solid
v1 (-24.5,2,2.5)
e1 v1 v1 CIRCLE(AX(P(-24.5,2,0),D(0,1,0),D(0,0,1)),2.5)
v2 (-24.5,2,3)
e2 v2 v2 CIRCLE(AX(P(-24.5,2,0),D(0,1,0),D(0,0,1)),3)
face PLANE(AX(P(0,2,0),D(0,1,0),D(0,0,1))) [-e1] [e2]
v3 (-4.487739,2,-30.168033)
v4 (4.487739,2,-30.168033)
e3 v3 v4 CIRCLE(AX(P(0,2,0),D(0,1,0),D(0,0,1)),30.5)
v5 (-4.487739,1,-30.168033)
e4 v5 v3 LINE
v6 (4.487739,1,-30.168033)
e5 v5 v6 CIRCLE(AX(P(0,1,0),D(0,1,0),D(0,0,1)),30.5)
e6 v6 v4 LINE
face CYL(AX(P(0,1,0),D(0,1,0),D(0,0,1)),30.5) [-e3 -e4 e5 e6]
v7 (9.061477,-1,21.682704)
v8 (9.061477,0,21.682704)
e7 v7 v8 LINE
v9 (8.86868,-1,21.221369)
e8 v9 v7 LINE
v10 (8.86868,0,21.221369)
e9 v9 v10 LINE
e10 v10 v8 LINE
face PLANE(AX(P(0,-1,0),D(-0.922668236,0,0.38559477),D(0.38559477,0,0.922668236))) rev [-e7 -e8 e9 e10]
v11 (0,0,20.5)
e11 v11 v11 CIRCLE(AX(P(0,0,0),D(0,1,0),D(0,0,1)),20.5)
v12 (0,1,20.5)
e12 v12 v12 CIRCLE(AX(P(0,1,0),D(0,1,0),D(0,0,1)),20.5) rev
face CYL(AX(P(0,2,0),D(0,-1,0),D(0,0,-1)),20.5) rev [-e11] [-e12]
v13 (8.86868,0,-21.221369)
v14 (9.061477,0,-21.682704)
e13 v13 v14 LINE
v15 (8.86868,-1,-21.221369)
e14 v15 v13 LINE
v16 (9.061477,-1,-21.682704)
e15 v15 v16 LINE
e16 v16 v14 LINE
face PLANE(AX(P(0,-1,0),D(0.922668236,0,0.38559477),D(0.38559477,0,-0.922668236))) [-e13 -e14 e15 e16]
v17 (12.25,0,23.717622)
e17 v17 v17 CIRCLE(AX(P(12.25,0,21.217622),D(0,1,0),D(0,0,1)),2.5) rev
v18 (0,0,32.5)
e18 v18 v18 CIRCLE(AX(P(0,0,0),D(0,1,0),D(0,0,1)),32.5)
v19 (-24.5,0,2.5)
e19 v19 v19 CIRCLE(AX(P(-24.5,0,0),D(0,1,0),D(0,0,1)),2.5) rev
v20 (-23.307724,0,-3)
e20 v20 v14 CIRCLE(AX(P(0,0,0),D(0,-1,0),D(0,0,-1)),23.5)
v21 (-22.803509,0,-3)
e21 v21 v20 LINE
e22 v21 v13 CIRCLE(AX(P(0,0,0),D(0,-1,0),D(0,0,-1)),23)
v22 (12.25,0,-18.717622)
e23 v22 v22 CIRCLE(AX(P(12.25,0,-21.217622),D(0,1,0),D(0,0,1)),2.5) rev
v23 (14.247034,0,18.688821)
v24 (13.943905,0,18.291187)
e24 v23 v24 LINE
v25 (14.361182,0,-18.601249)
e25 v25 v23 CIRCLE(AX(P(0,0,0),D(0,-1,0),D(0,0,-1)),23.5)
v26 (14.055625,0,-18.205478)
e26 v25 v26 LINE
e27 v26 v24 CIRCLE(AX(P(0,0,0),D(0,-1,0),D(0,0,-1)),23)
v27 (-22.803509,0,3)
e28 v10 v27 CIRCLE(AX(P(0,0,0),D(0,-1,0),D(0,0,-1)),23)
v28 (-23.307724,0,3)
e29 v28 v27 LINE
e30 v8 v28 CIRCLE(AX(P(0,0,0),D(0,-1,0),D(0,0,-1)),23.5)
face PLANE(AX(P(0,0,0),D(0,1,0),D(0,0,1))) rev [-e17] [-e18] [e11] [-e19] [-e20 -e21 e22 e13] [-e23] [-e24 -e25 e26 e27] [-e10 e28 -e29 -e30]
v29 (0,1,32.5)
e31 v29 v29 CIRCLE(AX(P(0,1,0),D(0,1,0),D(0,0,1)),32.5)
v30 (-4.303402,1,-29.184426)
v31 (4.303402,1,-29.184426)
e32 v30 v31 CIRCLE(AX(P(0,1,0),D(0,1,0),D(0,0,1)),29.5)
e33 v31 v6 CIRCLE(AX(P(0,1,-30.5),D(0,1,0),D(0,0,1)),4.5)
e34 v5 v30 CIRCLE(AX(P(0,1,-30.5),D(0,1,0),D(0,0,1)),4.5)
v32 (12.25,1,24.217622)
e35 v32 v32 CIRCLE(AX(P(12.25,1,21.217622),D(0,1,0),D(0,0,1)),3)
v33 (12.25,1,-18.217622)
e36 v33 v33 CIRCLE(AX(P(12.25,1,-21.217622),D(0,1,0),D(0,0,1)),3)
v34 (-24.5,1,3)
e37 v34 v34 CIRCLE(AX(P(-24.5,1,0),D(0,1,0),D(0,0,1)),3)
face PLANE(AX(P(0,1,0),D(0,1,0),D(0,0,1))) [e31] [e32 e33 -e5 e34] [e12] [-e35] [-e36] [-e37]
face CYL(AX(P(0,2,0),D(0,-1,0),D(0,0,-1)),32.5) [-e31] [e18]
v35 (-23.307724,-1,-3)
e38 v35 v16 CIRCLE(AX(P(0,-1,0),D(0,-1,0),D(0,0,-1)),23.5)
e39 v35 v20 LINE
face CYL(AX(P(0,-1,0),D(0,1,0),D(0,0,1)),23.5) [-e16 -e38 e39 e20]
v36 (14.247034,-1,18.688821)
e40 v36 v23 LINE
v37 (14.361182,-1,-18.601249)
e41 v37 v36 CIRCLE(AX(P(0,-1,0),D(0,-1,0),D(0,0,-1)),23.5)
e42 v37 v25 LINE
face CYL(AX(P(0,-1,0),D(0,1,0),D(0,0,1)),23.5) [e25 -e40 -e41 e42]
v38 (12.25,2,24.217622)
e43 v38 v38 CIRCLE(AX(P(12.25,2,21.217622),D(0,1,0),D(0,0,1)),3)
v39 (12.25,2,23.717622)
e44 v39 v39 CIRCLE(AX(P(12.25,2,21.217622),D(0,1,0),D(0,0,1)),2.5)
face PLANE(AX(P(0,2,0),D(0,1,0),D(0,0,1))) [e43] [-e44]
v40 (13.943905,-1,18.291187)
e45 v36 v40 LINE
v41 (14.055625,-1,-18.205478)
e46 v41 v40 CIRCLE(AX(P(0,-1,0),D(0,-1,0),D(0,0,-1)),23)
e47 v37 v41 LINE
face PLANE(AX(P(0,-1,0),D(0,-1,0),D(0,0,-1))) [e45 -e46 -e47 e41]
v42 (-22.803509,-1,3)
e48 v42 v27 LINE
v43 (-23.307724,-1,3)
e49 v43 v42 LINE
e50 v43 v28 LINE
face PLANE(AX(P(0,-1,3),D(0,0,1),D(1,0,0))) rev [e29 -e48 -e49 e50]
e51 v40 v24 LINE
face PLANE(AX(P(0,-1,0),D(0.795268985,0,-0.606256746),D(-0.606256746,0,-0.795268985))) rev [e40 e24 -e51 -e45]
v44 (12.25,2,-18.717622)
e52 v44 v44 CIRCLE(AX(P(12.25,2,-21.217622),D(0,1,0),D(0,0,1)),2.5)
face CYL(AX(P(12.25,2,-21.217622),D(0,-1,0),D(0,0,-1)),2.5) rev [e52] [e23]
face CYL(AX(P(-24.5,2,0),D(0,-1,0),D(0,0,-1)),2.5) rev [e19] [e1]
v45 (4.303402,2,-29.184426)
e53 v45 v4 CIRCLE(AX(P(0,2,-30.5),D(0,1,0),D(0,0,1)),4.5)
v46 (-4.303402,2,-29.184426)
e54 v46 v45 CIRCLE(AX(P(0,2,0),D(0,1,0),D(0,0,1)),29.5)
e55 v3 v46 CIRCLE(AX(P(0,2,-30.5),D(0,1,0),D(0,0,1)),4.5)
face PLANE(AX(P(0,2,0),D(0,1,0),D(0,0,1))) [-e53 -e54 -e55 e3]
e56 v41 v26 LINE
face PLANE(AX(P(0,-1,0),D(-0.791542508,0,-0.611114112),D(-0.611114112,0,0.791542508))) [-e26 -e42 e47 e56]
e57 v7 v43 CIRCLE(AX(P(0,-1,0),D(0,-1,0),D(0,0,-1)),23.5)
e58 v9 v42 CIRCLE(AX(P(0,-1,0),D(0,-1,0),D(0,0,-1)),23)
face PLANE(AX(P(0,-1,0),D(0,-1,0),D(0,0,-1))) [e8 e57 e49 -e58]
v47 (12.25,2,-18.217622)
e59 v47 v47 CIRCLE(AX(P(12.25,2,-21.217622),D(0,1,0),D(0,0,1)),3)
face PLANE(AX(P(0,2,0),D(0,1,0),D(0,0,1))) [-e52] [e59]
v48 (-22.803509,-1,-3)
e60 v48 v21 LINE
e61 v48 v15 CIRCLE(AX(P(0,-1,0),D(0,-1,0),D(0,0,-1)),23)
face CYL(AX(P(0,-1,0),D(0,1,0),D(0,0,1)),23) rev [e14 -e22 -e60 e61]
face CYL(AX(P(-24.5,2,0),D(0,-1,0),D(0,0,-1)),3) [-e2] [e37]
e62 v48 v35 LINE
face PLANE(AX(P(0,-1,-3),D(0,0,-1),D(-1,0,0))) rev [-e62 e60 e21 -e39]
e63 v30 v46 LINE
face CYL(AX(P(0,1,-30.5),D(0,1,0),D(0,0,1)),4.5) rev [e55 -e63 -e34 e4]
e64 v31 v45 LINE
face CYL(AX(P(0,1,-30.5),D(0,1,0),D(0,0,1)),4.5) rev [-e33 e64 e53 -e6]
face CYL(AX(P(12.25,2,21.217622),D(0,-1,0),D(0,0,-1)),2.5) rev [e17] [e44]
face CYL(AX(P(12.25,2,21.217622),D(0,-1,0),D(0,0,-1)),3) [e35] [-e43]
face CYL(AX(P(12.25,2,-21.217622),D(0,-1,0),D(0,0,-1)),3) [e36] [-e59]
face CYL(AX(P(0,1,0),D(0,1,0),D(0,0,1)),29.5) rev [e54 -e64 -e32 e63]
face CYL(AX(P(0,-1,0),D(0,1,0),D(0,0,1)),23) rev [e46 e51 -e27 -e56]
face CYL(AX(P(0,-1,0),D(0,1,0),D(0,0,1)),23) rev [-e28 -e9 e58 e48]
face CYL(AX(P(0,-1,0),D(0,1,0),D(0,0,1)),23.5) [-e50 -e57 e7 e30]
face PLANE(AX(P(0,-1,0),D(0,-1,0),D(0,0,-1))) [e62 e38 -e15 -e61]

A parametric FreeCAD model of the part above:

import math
import FreeCAD as App
import Part
import Sketcher

V = App.Vector
Q = App.Units.Quantity

doc = App.newDocument("Part")
body = doc.addObject("PartDesign::Body", "Body")

# Sketch on XZ plane
sketch1 = doc.addObject("Sketcher::SketchObject", "Sketch")
body.addObject(sketch1)
sketch1.AttachmentSupport = (doc.XZ_Plane, [""])
sketch1.MapMode = "FlatFace"
sketch1.addGeometry([
    Part.Circle(V(0, 0, 0), V(0, 0, 1), 32.5),
    Part.Circle(V(0, 0, 0), V(0, 0, 1), 20.5),
], False)
sketch1.addConstraint([
    Sketcher.Constraint("Coincident", 0, 3, -1, 1),
    Sketcher.Constraint("Coincident", 1, 3, -1, 1),
    Sketcher.Constraint("Diameter", 0, Q("65 mm")),
    Sketcher.Constraint("Diameter", 1, Q("41 mm")),
])
pad1 = doc.addObject("PartDesign::Pad", "Pad")
body.addObject(pad1)
pad1.Profile = sketch1
pad1.Length = 2
pad1.Reversed = True

# Sketch on XZ plane
sketch2 = doc.addObject("Sketcher::SketchObject", "Sketch001")
body.addObject(sketch2)
sketch2.AttachmentSupport = (doc.XZ_Plane, [""])
sketch2.MapMode = "FlatFace"
sketch2.AttachmentOffset = App.Placement(V(0, 0, -1), App.Rotation())
sketch2.addGeometry([
    Part.ArcOfCircle(Part.Circle(V(0, 0, 0), V(0, 0, 1), 32.5), math.radians(-82.659007), math.radians(262.659007)),  # 0
    Part.ArcOfCircle(Part.Circle(V(0, -30.5, 0), V(0, 0, 1), 4.5), math.radians(-157.340993), math.radians(-22.659007)),  # 1
    Part.ArcOfCircle(Part.Circle(V(0, -30.5, 0), V(0, 0, 1), 4.5), math.radians(163.001317), math.radians(175.769419)),  # 2
    Part.ArcOfCircle(Part.Circle(V(0, 0, 0), V(0, 0, 1), 29.5), math.radians(-81.611873), math.radians(261.611873)),  # 3
    Part.ArcOfCircle(Part.Circle(V(0, -30.5, 0), V(0, 0, 1), 4.5), math.radians(4.230581), math.radians(16.998683)),  # 4
    Part.ArcOfCircle(Part.Circle(V(0, 0, 0), V(0, 0, 1), 30.5), math.radians(-81.538838), math.radians(261.538838)),  # 5
], False)
sketch2.addConstraint([
    Sketcher.Constraint("Coincident", 0, 1, 1, 2),
    Sketcher.Constraint("Coincident", 1, 1, 0, 2),
    Sketcher.Constraint("Coincident", 2, 1, 3, 2),
    Sketcher.Constraint("Coincident", 3, 1, 4, 2),
    Sketcher.Constraint("Coincident", 4, 1, 5, 1),
    Sketcher.Constraint("Coincident", 5, 2, 2, 2),
    Sketcher.Constraint("Coincident", 0, 3, -1, 1),
    Sketcher.Constraint("Coincident", 3, 3, -1, 1),
    Sketcher.Constraint("Coincident", 5, 3, -1, 1),
    Sketcher.Constraint("Coincident", 2, 3, 1, 3),
    Sketcher.Constraint("Coincident", 4, 3, 1, 3),
    Sketcher.Constraint("Equal", 1, 2),
    Sketcher.Constraint("Equal", 2, 4),
    Sketcher.Constraint("PointOnObject", 1, 3, -2),
    Sketcher.Constraint("Radius", 0, Q("32.5 mm")),
    Sketcher.Constraint("Radius", 1, Q("4.5 mm")),
    Sketcher.Constraint("Radius", 3, Q("29.5 mm")),
    Sketcher.Constraint("Radius", 5, Q("30.5 mm")),
    Sketcher.Constraint("DistanceY", 1, 3, -1, 1, Q("30.5 mm")),
])
pocket1 = doc.addObject("PartDesign::Pocket", "Pocket")
body.addObject(pocket1)
pocket1.Profile = sketch2
pocket1.Length = 1

# Sketch on XZ plane
sketch3 = doc.addObject("Sketcher::SketchObject", "Sketch002")
body.addObject(sketch3)
sketch3.AttachmentSupport = (doc.XZ_Plane, [""])
sketch3.MapMode = "FlatFace"
sketch3.AttachmentOffset = App.Placement(V(0, 0, -1), App.Rotation())
sketch3.addGeometry([
    Part.ArcOfCircle(Part.Circle(V(12.25, -21.217622, 0), V(0, 0, 1), 3), math.radians(120), math.radians(300)),  # 0
    Part.ArcOfCircle(Part.Circle(V(12.25, -21.217622, 0), V(0, 0, 1), 3), math.radians(0), math.radians(120)),  # 1
    Part.ArcOfCircle(Part.Circle(V(12.25, -21.217622, 0), V(0, 0, 1), 3), math.radians(-60), math.radians(0)),  # 2
    Part.ArcOfCircle(Part.Circle(V(12.25, -21.217622, 0), V(0, 0, 1), 2.5), math.radians(120), math.radians(300)),  # 3
    Part.ArcOfCircle(Part.Circle(V(12.25, -21.217622, 0), V(0, 0, 1), 2.5), math.radians(-60), math.radians(0)),  # 4
    Part.ArcOfCircle(Part.Circle(V(12.25, -21.217622, 0), V(0, 0, 1), 2.5), math.radians(0), math.radians(120)),  # 5
    Part.ArcOfCircle(Part.Circle(V(12.25, 21.217622, 0), V(0, 0, 1), 3), math.radians(-120), math.radians(0)),  # 6
    Part.ArcOfCircle(Part.Circle(V(12.25, 21.217622, 0), V(0, 0, 1), 3), math.radians(60), math.radians(240)),  # 7
    Part.ArcOfCircle(Part.Circle(V(12.25, 21.217622, 0), V(0, 0, 1), 3), math.radians(0), math.radians(60)),  # 8
    Part.ArcOfCircle(Part.Circle(V(12.25, 21.217622, 0), V(0, 0, 1), 2.5), math.radians(0), math.radians(60)),  # 9
    Part.ArcOfCircle(Part.Circle(V(12.25, 21.217622, 0), V(0, 0, 1), 2.5), math.radians(60), math.radians(240)),  # 10
    Part.ArcOfCircle(Part.Circle(V(12.25, 21.217622, 0), V(0, 0, 1), 2.5), math.radians(-120), math.radians(0)),  # 11
    Part.Circle(V(-24.5, 0, 0), V(0, 0, 1), 3),  # 12
    Part.Circle(V(-24.5, 0, 0), V(0, 0, 1), 2.5),  # 13
], False)
sketch3.addConstraint([
    Sketcher.Constraint("Tangent", 0, 1, 1, 2),
    Sketcher.Constraint("Tangent", 1, 1, 2, 2),
    Sketcher.Constraint("Tangent", 2, 1, 0, 2),
    Sketcher.Constraint("Tangent", 3, 2, 4, 1),
    Sketcher.Constraint("Tangent", 4, 2, 5, 1),
    Sketcher.Constraint("Tangent", 5, 2, 3, 1),
    Sketcher.Constraint("Tangent", 6, 1, 7, 2),
    Sketcher.Constraint("Tangent", 7, 1, 8, 2),
    Sketcher.Constraint("Tangent", 8, 1, 6, 2),
    Sketcher.Constraint("Tangent", 9, 2, 10, 1),
    Sketcher.Constraint("Tangent", 10, 2, 11, 1),
    Sketcher.Constraint("Tangent", 11, 2, 9, 1),
    Sketcher.Constraint("Coincident", 3, 3, 0, 3),
    Sketcher.Constraint("Coincident", 9, 3, 6, 3),
    Sketcher.Constraint("Coincident", 13, 3, 12, 3),
    Sketcher.Constraint("Equal", 2, 6),
    Sketcher.Constraint("Equal", 5, 9),
    Sketcher.Constraint("Equal", 8, 12),
    Sketcher.Constraint("Equal", 11, 13),
    Sketcher.Constraint("Symmetric", 0, 3, 6, 3, -1),
    Sketcher.Constraint("PointOnObject", 12, 3, -1),
    Sketcher.Constraint("Horizontal", 5, 3, 1, 1),
    Sketcher.Constraint("Horizontal", 1, 1, 4, 2),
    Sketcher.Constraint("Horizontal", 11, 3, 8, 1),
    Sketcher.Constraint("Horizontal", 8, 1, 11, 2),
    Sketcher.Constraint("Vertical", 0, 1, 6, 1),
    Sketcher.Constraint("Vertical", 2, 1, 7, 1),
    Sketcher.Constraint("Vertical", 3, 2, 9, 2),
    Sketcher.Constraint("Vertical", 5, 2, 10, 2),
    Sketcher.Constraint("Diameter", 12, Q("6 mm")),
    Sketcher.Constraint("Diameter", 13, Q("5 mm")),
    Sketcher.Constraint("DistanceX", -1, 1, 5, 2, Q("11 mm")),
    Sketcher.Constraint("DistanceX", 12, 3, -1, 1, Q("24.5 mm")),
    Sketcher.Constraint("DistanceX", -1, 1, 3, 2, Q("13.5 mm")),
    Sketcher.Constraint("DistanceX", 0, 1, 2, 3, Q("1.5 mm")),
    Sketcher.Constraint("DistanceX", 2, 1, 1, 1, Q("1.5 mm")),
    Sketcher.Constraint("DistanceX", -1, 1, 0, 3, Q("12.25 mm")),
    Sketcher.Constraint("DistanceY", 2, 1, -1, 1, Q("23.815699 mm")),
])
pad2 = doc.addObject("PartDesign::Pad", "Pad001")
body.addObject(pad2)
pad2.Profile = sketch3
pad2.Length = 1
pad2.Reversed = True

# Sketch on XZ plane
sketch4 = doc.addObject("Sketcher::SketchObject", "Sketch003")
body.addObject(sketch4)
sketch4.AttachmentSupport = (doc.XZ_Plane, [""])
sketch4.MapMode = "FlatFace"
sketch4.AttachmentOffset = App.Placement(V(0, 0, -1), App.Rotation())
sketch4.addGeometry([
    Part.Circle(V(-24.5, 0, 0), V(0, 0, 1), 2.5),
    Part.Circle(V(12.25, 21.217622, 0), V(0, 0, 1), 2.5),
    Part.Circle(V(12.25, -21.217622, 0), V(0, 0, 1), 2.5),
], False)
sketch4.addConstraint([
    Sketcher.Constraint("Equal", 0, 1),
    Sketcher.Constraint("Equal", 1, 2),
    Sketcher.Constraint("Symmetric", 1, 3, 2, 3, -1),
    Sketcher.Constraint("PointOnObject", 0, 3, -1),
    Sketcher.Constraint("Diameter", 0, Q("5 mm")),
    Sketcher.Constraint("DistanceX", 0, 3, -1, 1, Q("24.5 mm")),
    Sketcher.Constraint("DistanceX", -1, 1, 1, 3, Q("12.25 mm")),
    Sketcher.Constraint("DistanceY", -1, 1, 1, 3, Q("21.217622 mm")),
])
pocket2 = doc.addObject("PartDesign::Pocket", "Pocket001")
body.addObject(pocket2)
pocket2.Profile = sketch4
pocket2.Type = "ThroughAll"
pocket2.Midplane = True

# Sketch on XZ plane
sketch5 = doc.addObject("Sketcher::SketchObject", "Sketch004")
body.addObject(sketch5)
sketch5.AttachmentSupport = (doc.XZ_Plane, [""])
sketch5.MapMode = "FlatFace"
sketch5.addGeometry([
    Part.ArcOfCircle(Part.Circle(V(0, 0, 0), V(0, 0, 1), 23.5), math.radians(67.319331), math.radians(172.665631)),  # 0
    Part.LineSegment(V(-23.307724, 3, 0), V(-22.803509, 3, 0)),  # 1
    Part.ArcOfCircle(Part.Circle(V(0, 0, 0), V(0, 0, 1), 23), math.radians(67.319331), math.radians(172.505283)),  # 2
    Part.LineSegment(V(8.86868, 21.221369, 0), V(9.061477, 21.682704, 0)),  # 3
    Part.ArcOfCircle(Part.Circle(V(0, 0, 0), V(0, 0, 1), 23.5), math.radians(0), math.radians(52.680669)),  # 4
    Part.LineSegment(V(14.247034, 18.688821, 0), V(13.943905, 18.291187, 0)),  # 5
    Part.ArcOfCircle(Part.Circle(V(0, 0, 0), V(0, 0, 1), 23), math.radians(0), math.radians(52.680669)),  # 6
    Part.ArcOfCircle(Part.Circle(V(0, 0, 0), V(0, 0, 1), 23), math.radians(-52.329896), math.radians(0)),  # 7
    Part.LineSegment(V(14.055625, -18.205478, 0), V(14.361182, -18.601249, 0)),  # 8
    Part.ArcOfCircle(Part.Circle(V(0, 0, 0), V(0, 0, 1), 23.5), math.radians(-52.329896), math.radians(0)),  # 9
    Part.LineSegment(V(-22.803509, -3, 0), V(-23.307724, -3, 0)),  # 10
    Part.ArcOfCircle(Part.Circle(V(0, 0, 0), V(0, 0, 1), 23.5), math.radians(-172.665631), math.radians(-67.319331)),  # 11
    Part.LineSegment(V(9.061477, -21.682704, 0), V(8.86868, -21.221369, 0)),  # 12
    Part.ArcOfCircle(Part.Circle(V(0, 0, 0), V(0, 0, 1), 23), math.radians(-172.505283), math.radians(-67.319331)),  # 13
], False)
sketch5.addConstraint([
    Sketcher.Constraint("Coincident", 0, 2, 1, 1),
    Sketcher.Constraint("Coincident", 1, 2, 2, 2),
    Sketcher.Constraint("Coincident", 2, 1, 3, 1),
    Sketcher.Constraint("Coincident", 3, 2, 0, 1),
    Sketcher.Constraint("Coincident", 4, 2, 5, 1),
    Sketcher.Constraint("Coincident", 5, 2, 6, 2),
    Sketcher.Constraint("Tangent", 6, 1, 7, 2),
    Sketcher.Constraint("Coincident", 7, 1, 8, 1),
    Sketcher.Constraint("Coincident", 8, 2, 9, 1),
    Sketcher.Constraint("Tangent", 9, 2, 4, 1),
    Sketcher.Constraint("Coincident", 10, 2, 11, 1),
    Sketcher.Constraint("Coincident", 11, 2, 12, 1),
    Sketcher.Constraint("Coincident", 12, 2, 13, 2),
    Sketcher.Constraint("Coincident", 13, 1, 10, 1),
    Sketcher.Constraint("Horizontal", 1),
    Sketcher.Constraint("Horizontal", 10),
    Sketcher.Constraint("Coincident", 0, 3, -1, 1),
    Sketcher.Constraint("Coincident", 2, 3, -1, 1),
    Sketcher.Constraint("Coincident", 4, 3, -1, 1),
    Sketcher.Constraint("Coincident", 6, 3, -1, 1),
    Sketcher.Constraint("Coincident", 11, 3, -1, 1),
    Sketcher.Constraint("Coincident", 13, 3, -1, 1),
    Sketcher.Constraint("Equal", 0, 4),
    Sketcher.Constraint("Equal", 2, 6),
    Sketcher.Constraint("Equal", 6, 7),
    Sketcher.Constraint("Equal", 4, 9),
    Sketcher.Constraint("Equal", 9, 11),
    Sketcher.Constraint("Equal", 7, 13),
    Sketcher.Constraint("PointOnObject", 6, 1, -1),
    Sketcher.Constraint("PointOnObject", 9, 2, -1),
    Sketcher.Constraint("Vertical", 0, 2, 10, 2),
    Sketcher.Constraint("Vertical", 3, 2, 11, 2),
    Sketcher.Constraint("Vertical", 2, 1, 12, 2),
    Sketcher.Constraint("Radius", 2, Q("23 mm")),
    Sketcher.Constraint("Radius", 0, Q("23.5 mm")),
    Sketcher.Constraint("DistanceY", -1, 1, 0, 2, Q("3 mm")),
    Sketcher.Constraint("DistanceX", 12, 2, 8, 2, Q("5.492502 mm")),
    Sketcher.Constraint("DistanceX", -1, 1, 2, 1, Q("8.86868 mm")),
    Sketcher.Constraint("DistanceY", -1, 1, 4, 2, Q("18.688821 mm")),
    Sketcher.Constraint("DistanceX", 5, 2, 4, 2, Q("0.303128 mm")),
    Sketcher.Constraint("DistanceX", 3, 2, 5, 2, Q("4.882428 mm")),
    Sketcher.Constraint("DistanceY", 8, 2, 7, 1, Q("0.395771 mm")),
])
pad3 = doc.addObject("PartDesign::Pad", "Pad002")
body.addObject(pad3)
pad3.Profile = sketch5
pad3.Length = 1

doc.recompute()
